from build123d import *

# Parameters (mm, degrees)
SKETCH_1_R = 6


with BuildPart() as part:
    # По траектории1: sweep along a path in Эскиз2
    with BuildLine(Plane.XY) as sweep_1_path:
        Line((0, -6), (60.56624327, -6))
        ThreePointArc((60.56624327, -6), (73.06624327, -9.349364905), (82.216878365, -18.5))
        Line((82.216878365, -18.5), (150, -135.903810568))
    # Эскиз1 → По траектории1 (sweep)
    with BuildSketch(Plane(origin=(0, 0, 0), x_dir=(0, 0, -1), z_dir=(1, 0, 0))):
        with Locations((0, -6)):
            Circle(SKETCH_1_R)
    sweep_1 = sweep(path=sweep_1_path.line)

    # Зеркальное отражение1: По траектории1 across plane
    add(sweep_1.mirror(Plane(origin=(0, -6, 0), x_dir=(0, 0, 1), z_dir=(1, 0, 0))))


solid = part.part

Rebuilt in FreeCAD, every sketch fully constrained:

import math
import FreeCAD as App
import Part
import Sketcher
Q = App.Units.Quantity

doc = App.newDocument("Part")
body = doc.addObject("PartDesign::Body", "Body")

# Sketch on YZ plane
sketch1 = doc.addObject("Sketcher::SketchObject", "Sketch")
body.addObject(sketch1)
sketch1.AttachmentSupport = (doc.YZ_Plane, [""])
sketch1.MapMode = "FlatFace"
sketch1.addGeometry(Part.Circle(App.Vector(-6, 0, 0), App.Vector(0, 0, 1), 6), False)
sketch1.addConstraint(Sketcher.Constraint("PointOnObject", 0, 3, -1))
sketch1.addConstraint(Sketcher.Constraint("Diameter", 0, Q("12 mm")))
sketch1.addConstraint(Sketcher.Constraint("DistanceX", 0, 3, -1, 1, Q("6 mm")))

# Sketch on XY plane
sketch2 = doc.addObject("Sketcher::SketchObject", "Sketch001")
body.addObject(sketch2)
sketch2.AttachmentSupport = (doc.XY_Plane, [""])
sketch2.MapMode = "FlatFace"
sketch2.addGeometry(Part.LineSegment(App.Vector(0, -6, 0), App.Vector(60.566243, -6, 0)), False)
sketch2.addGeometry(Part.ArcOfCircle(Part.Circle(App.Vector(60.566243, -31, 0), App.Vector(0, 0, 1), 25), math.radians(30), math.radians(90)), False)
sketch2.addGeometry(Part.LineSegment(App.Vector(82.216878, -18.5, 0), App.Vector(150, -135.903811, 0)), False)
sketch2.addConstraint(Sketcher.Constraint("Tangent", 0, 2, 1, 2))
sketch2.addConstraint(Sketcher.Constraint("Tangent", 1, 1, 2, 1))
sketch2.addConstraint(Sketcher.Constraint("Horizontal", 0))
sketch2.addConstraint(Sketcher.Constraint("PointOnObject", 0, 1, -2))
sketch2.addConstraint(Sketcher.Constraint("Radius", 1, Q("25 mm")))
sketch2.addConstraint(Sketcher.Constraint("Angle", 2, Q("-60 deg")))
sketch2.addConstraint(Sketcher.Constraint("DistanceY", 1, 3, -1, 1, Q("31 mm")))
sketch2.addConstraint(Sketcher.Constraint("DistanceX", -1, 1, 2, 2, Q("150 mm")))
sketch2.addConstraint(Sketcher.Constraint("DistanceX", 0, 1, 0, 2, Q("60.566243 mm")))
doc.recompute()

additivepipe = doc.addObject("PartDesign::AdditivePipe", "AdditivePipe")
body.addObject(additivepipe)
additivepipe.Profile = sketch1
additivepipe.Spine = (sketch2, ["Edge1", "Edge2", "Edge3"])
doc.recompute()

mirrored = doc.addObject("PartDesign::Mirrored", "Mirrored")
body.addObject(mirrored)
mirrored.Originals = [additivepipe]
mirrored.MirrorPlane = (doc.YZ_Plane, [""])
body.Tip = mirrored

doc.recompute()
